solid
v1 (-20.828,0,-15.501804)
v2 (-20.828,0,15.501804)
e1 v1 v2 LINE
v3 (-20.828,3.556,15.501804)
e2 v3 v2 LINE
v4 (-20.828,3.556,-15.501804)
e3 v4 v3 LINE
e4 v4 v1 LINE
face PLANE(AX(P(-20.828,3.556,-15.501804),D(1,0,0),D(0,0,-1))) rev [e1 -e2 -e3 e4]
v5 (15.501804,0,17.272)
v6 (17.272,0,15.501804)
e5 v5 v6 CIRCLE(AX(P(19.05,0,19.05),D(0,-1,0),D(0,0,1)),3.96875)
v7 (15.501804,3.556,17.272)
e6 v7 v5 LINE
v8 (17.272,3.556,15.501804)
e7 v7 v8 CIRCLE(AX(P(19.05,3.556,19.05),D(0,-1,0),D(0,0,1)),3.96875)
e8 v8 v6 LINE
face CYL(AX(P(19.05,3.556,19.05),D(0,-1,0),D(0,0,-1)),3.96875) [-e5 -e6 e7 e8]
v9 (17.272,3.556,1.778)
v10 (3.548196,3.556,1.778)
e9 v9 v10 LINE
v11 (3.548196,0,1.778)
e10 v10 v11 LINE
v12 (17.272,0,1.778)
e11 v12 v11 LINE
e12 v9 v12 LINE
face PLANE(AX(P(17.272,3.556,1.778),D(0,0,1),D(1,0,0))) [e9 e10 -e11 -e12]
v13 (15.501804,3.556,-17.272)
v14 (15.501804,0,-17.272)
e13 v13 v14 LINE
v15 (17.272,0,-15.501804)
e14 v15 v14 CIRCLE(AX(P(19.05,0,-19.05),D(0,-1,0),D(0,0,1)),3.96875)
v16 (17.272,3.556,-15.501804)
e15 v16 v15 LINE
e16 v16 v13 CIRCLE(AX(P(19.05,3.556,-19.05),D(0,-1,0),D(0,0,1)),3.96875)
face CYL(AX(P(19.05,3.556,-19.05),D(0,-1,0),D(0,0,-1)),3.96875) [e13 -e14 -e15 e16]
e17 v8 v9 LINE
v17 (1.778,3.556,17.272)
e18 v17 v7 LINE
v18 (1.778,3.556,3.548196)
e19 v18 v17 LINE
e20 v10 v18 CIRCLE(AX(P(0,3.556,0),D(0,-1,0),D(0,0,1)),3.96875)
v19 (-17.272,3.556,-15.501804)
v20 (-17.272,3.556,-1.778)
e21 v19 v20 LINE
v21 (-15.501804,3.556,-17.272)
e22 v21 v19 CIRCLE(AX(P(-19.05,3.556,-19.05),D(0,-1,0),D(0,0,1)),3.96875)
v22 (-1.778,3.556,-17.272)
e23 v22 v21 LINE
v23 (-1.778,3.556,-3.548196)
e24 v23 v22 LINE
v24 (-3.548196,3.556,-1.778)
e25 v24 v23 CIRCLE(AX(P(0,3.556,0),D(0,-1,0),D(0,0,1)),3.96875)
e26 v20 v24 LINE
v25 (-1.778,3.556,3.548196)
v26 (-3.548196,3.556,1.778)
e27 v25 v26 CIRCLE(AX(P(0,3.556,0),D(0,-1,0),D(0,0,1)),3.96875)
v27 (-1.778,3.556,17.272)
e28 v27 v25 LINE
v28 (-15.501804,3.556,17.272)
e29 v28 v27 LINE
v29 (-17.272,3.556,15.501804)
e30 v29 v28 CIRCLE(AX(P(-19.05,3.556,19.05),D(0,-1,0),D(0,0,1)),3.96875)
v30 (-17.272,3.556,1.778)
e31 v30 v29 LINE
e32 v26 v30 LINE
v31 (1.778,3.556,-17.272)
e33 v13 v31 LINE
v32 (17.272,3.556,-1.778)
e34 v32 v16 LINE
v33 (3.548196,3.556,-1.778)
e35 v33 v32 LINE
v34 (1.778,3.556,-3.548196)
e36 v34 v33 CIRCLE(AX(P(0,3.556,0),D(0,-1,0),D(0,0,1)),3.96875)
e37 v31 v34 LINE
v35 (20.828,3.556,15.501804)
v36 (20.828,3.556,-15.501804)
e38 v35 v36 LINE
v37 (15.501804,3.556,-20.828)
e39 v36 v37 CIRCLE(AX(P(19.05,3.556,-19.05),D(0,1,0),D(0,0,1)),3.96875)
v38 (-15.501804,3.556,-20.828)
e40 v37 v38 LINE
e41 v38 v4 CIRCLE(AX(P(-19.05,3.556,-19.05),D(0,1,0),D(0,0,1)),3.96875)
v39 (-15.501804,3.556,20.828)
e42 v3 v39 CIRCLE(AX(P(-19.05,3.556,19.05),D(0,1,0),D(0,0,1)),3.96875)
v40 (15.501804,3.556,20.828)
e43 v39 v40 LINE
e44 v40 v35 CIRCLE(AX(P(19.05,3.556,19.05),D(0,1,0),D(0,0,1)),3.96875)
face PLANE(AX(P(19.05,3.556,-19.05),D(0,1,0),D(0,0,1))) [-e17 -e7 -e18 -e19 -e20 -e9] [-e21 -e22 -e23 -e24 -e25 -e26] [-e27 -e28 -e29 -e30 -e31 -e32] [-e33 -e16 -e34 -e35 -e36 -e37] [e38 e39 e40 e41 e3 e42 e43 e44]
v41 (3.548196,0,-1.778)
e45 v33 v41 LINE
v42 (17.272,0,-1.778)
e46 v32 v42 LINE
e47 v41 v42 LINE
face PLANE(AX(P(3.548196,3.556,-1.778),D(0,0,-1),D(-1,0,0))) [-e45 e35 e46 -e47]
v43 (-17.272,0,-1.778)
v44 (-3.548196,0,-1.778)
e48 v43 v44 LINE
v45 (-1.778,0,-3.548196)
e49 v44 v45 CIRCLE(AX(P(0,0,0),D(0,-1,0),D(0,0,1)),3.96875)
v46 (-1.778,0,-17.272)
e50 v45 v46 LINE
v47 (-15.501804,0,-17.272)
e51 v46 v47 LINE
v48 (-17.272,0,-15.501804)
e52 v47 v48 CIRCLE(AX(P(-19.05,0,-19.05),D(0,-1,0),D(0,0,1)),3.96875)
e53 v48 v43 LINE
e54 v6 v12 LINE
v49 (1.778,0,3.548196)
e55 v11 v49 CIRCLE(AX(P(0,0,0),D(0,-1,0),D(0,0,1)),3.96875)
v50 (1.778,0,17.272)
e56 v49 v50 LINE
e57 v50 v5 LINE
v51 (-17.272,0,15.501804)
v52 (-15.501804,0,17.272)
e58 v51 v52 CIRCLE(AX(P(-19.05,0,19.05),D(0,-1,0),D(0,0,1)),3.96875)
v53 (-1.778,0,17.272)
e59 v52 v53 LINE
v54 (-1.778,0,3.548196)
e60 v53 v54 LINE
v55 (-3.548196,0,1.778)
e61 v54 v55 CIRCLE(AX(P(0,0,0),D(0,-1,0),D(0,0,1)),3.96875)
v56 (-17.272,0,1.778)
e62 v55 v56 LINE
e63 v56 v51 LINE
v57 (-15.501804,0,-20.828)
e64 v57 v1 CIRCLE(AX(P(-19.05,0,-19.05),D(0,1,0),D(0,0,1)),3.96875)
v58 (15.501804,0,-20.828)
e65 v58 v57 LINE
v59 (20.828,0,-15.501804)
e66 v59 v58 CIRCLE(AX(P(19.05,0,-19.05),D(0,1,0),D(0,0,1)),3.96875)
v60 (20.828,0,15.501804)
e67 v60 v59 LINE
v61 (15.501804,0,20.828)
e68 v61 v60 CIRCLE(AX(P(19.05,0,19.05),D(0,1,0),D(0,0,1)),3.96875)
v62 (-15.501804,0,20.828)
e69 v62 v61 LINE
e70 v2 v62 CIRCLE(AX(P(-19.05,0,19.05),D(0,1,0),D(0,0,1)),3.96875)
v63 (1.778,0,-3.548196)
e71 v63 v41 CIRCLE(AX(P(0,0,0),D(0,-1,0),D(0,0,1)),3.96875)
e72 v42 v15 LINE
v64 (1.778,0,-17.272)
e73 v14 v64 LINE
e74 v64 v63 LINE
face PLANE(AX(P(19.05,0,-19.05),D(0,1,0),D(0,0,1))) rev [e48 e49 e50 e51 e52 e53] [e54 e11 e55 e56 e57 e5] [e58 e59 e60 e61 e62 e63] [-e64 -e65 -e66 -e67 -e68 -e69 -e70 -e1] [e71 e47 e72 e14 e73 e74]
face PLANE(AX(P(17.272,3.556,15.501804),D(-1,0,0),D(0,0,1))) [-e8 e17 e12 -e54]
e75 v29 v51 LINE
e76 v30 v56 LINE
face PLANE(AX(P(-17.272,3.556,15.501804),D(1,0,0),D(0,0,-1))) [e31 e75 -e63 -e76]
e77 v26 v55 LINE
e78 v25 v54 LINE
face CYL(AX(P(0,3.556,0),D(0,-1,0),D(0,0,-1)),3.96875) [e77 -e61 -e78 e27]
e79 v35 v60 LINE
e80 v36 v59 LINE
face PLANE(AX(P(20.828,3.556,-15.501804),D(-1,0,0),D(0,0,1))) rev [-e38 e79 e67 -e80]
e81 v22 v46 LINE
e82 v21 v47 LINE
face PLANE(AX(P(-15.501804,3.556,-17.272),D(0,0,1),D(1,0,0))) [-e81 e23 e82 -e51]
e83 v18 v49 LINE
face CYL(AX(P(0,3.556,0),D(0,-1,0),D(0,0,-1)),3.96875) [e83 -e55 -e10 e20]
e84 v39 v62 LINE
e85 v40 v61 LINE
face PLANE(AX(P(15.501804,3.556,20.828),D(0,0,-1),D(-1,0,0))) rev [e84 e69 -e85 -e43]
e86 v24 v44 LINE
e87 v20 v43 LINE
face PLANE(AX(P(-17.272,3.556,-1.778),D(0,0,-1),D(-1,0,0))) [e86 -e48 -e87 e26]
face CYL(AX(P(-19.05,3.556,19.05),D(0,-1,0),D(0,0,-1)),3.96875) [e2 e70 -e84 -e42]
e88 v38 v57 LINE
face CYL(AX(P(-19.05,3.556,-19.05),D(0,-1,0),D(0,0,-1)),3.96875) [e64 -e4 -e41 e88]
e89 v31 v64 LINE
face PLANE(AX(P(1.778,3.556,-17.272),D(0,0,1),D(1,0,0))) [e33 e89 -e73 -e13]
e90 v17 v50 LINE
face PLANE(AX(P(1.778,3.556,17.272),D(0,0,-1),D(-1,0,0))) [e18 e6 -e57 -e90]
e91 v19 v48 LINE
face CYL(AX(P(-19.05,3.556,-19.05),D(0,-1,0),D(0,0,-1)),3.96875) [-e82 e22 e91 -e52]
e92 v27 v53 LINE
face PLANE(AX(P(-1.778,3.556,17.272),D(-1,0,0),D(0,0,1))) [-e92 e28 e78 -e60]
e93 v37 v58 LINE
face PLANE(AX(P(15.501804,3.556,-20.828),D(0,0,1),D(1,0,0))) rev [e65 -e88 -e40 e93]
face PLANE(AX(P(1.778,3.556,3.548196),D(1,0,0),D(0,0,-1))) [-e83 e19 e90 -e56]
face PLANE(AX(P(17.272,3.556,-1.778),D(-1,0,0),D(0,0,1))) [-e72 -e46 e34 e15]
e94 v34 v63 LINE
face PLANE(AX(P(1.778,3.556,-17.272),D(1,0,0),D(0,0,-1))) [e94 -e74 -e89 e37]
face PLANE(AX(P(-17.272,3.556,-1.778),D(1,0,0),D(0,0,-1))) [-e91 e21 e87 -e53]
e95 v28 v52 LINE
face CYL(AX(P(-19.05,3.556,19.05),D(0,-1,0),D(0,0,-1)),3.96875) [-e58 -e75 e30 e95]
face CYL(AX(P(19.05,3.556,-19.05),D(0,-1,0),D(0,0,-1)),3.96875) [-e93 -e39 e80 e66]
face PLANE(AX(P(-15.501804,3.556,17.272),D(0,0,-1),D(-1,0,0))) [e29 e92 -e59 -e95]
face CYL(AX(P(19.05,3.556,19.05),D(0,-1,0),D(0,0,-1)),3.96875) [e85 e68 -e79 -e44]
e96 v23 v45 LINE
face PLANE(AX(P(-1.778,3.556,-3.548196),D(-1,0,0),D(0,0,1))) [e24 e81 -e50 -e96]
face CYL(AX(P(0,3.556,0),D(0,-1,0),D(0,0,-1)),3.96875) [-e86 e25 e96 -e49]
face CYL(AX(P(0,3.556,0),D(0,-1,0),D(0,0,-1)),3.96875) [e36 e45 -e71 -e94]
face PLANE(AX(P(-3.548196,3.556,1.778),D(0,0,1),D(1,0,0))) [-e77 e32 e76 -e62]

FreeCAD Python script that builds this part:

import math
import FreeCAD as App
import Part
import Sketcher

V = App.Vector
Q = App.Units.Quantity

doc = App.newDocument("Part")
params = doc.addObject("Spreadsheet::Sheet", "Params")
for row, (alias, value) in enumerate([
    ("sketch1_radius", "0.15625 in"),
    ("pad1_length", "0.14 in"),
], start=1):
    params.set(f"A{row}", alias)
    params.set(f"B{row}", "=" + value)
    params.setAlias(f"B{row}", alias)

body = doc.addObject("PartDesign::Body", "Body")

# Sketch on XZ plane
sketch1 = doc.addObject("Sketcher::SketchObject", "Sketch")
body.addObject(sketch1)
sketch1.AttachmentSupport = (doc.XZ_Plane, [""])
sketch1.MapMode = "FlatFace"
sketch1.addGeometry([
    Part.LineSegment(V(-15.5, 20.8, 0), V(15.5, 20.8, 0)),  # 0
    Part.ArcOfCircle(Part.Circle(V(19.1, 19.1, 0), V(0, 0, 1), 4), math.radians(-63), math.radians(153)),  # 1
    Part.LineSegment(V(20.8, 15.5, 0), V(20.8, -15.5, 0)),  # 2
    Part.ArcOfCircle(Part.Circle(V(19.1, -19.1, 0), V(0, 0, 1), 4), math.radians(-153), math.radians(63)),  # 3
    Part.LineSegment(V(15.5, -20.8, 0), V(-15.5, -20.8, 0)),  # 4
    Part.ArcOfCircle(Part.Circle(V(-19.1, -19.1, 0), V(0, 0, 1), 4), math.radians(117), math.radians(333)),  # 5
    Part.LineSegment(V(-20.8, -15.5, 0), V(-20.8, 15.5, 0)),  # 6
    Part.ArcOfCircle(Part.Circle(V(-19.1, 19.1, 0), V(0, 0, 1), 4), math.radians(27), math.radians(243)),  # 7
    Part.ArcOfCircle(Part.Circle(V(19, 19, 0), V(0, 0, 1), 4), math.radians(-153), math.radians(-117)),  # 8
    Part.LineSegment(V(15.5, 17.3, 0), V(1.8, 17.3, 0)),  # 9
    Part.LineSegment(V(1.8, 17.3, 0), V(1.8, 3.5, 0)),  # 10
    Part.ArcOfCircle(Part.Circle(V(0, 0, 0), V(0, 0, 1), 4), math.radians(27), math.radians(63)),  # 11
    Part.LineSegment(V(3.5, 1.8, 0), V(17.3, 1.8, 0)),  # 12
    Part.LineSegment(V(17.3, 1.8, 0), V(17.3, 15.5, 0)),  # 13
    Part.ArcOfCircle(Part.Circle(V(-19, 19, 0), V(0, 0, 1), 4), math.radians(-63), math.radians(-27)),  # 14
    Part.LineSegment(V(-17.3, 15.5, 0), V(-17.3, 1.8, 0)),  # 15
    Part.LineSegment(V(-17.3, 1.8, 0), V(-3.5, 1.8, 0)),  # 16
    Part.ArcOfCircle(Part.Circle(V(0, 0, 0), V(0, 0, 1), 4), math.radians(117), math.radians(153)),  # 17
    Part.LineSegment(V(-1.8, 3.5, 0), V(-1.8, 17.3, 0)),  # 18
    Part.LineSegment(V(-1.8, 17.3, 0), V(-15.5, 17.3, 0)),  # 19
    Part.LineSegment(V(1.8, -17.3, 0), V(15.5, -17.3, 0)),  # 20
    Part.ArcOfCircle(Part.Circle(V(19, -19, 0), V(0, 0, 1), 4), math.radians(117), math.radians(153)),  # 21
    Part.LineSegment(V(17.3, -15.5, 0), V(17.3, -1.8, 0)),  # 22
    Part.LineSegment(V(17.3, -1.8, 0), V(3.5, -1.8, 0)),  # 23
    Part.ArcOfCircle(Part.Circle(V(0, 0, 0), V(0, 0, 1), 4), math.radians(-63), math.radians(-27)),  # 24
    Part.LineSegment(V(1.8, -3.5, 0), V(1.8, -17.3, 0)),  # 25
    Part.LineSegment(V(-15.5, -17.3, 0), V(-1.8, -17.3, 0)),  # 26
    Part.LineSegment(V(-1.8, -17.3, 0), V(-1.8, -3.5, 0)),  # 27
    Part.ArcOfCircle(Part.Circle(V(0, 0, 0), V(0, 0, 1), 4), math.radians(-153), math.radians(-117)),  # 28
    Part.LineSegment(V(-3.5, -1.8, 0), V(-17.3, -1.8, 0)),  # 29
    Part.LineSegment(V(-17.3, -1.8, 0), V(-17.3, -15.5, 0)),  # 30
    Part.ArcOfCircle(Part.Circle(V(-19, -19, 0), V(0, 0, 1), 4), math.radians(27), math.radians(63)),  # 31
], False)
sketch1.addConstraint([
    Sketcher.Constraint("Coincident", 0, 2, 1, 2),
    Sketcher.Constraint("Coincident", 1, 1, 2, 1),
    Sketcher.Constraint("Coincident", 2, 2, 3, 2),
    Sketcher.Constraint("Coincident", 3, 1, 4, 1),
    Sketcher.Constraint("Coincident", 4, 2, 5, 2),
    Sketcher.Constraint("Coincident", 5, 1, 6, 1),
    Sketcher.Constraint("Coincident", 6, 2, 7, 2),
    Sketcher.Constraint("Coincident", 7, 1, 0, 1),
    Sketcher.Constraint("Coincident", 8, 1, 9, 1),
    Sketcher.Constraint("Coincident", 9, 2, 10, 1),
    Sketcher.Constraint("Coincident", 10, 2, 11, 2),
    Sketcher.Constraint("Coincident", 11, 1, 12, 1),
    Sketcher.Constraint("Coincident", 12, 2, 13, 1),
    Sketcher.Constraint("Coincident", 13, 2, 8, 2),
    Sketcher.Constraint("Coincident", 14, 1, 15, 1),
    Sketcher.Constraint("Coincident", 15, 2, 16, 1),
    Sketcher.Constraint("Coincident", 16, 2, 17, 2),
    Sketcher.Constraint("Coincident", 17, 1, 18, 1),
    Sketcher.Constraint("Coincident", 18, 2, 19, 1),
    Sketcher.Constraint("Coincident", 19, 2, 14, 2),
    Sketcher.Constraint("Coincident", 20, 2, 21, 2),
    Sketcher.Constraint("Coincident", 21, 1, 22, 1),
    Sketcher.Constraint("Coincident", 22, 2, 23, 1),
    Sketcher.Constraint("Coincident", 23, 2, 24, 2),
    Sketcher.Constraint("Coincident", 24, 1, 25, 1),
    Sketcher.Constraint("Coincident", 25, 2, 20, 1),
    Sketcher.Constraint("Coincident", 26, 2, 27, 1),
    Sketcher.Constraint("Coincident", 27, 2, 28, 2),
    Sketcher.Constraint("Coincident", 28, 1, 29, 1),
    Sketcher.Constraint("Coincident", 29, 2, 30, 1),
    Sketcher.Constraint("Coincident", 30, 2, 31, 2),
    Sketcher.Constraint("Coincident", 31, 1, 26, 1),
    Sketcher.Constraint("Horizontal", 0),
    Sketcher.Constraint("Vertical", 2),
    Sketcher.Constraint("Horizontal", 4),
    Sketcher.Constraint("Vertical", 6),
    Sketcher.Constraint("Horizontal", 9),
    Sketcher.Constraint("Vertical", 10),
    Sketcher.Constraint("Horizontal", 12),
    Sketcher.Constraint("Vertical", 13),
    Sketcher.Constraint("Vertical", 15),
    Sketcher.Constraint("Horizontal", 16),
    Sketcher.Constraint("Vertical", 18),
    Sketcher.Constraint("Horizontal", 19),
    Sketcher.Constraint("Horizontal", 20),
    Sketcher.Constraint("Vertical", 22),
    Sketcher.Constraint("Horizontal", 23),
    Sketcher.Constraint("Vertical", 25),
    Sketcher.Constraint("Horizontal", 26),
    Sketcher.Constraint("Vertical", 27),
    Sketcher.Constraint("Horizontal", 29),
    Sketcher.Constraint("Vertical", 30),
    Sketcher.Constraint("Coincident", 11, 3, -1, 1),
    Sketcher.Constraint("Coincident", 17, 3, -1, 1),
    Sketcher.Constraint("Coincident", 24, 3, -1, 1),
    Sketcher.Constraint("Coincident", 28, 3, -1, 1),
    Sketcher.Constraint("Coincident", 8, 3, 1, 3),
    Sketcher.Constraint("Coincident", 14, 3, 7, 3),
    Sketcher.Constraint("Coincident", 21, 3, 3, 3),
    Sketcher.Constraint("Coincident", 31, 3, 5, 3),
    Sketcher.Constraint("Equal", 1, 3),
    Sketcher.Constraint("Equal", 3, 5),
    Sketcher.Constraint("Equal", 5, 7),
    Sketcher.Constraint("Equal", 7, 8),
    Sketcher.Constraint("Equal", 8, 11),
    Sketcher.Constraint("Equal", 11, 14),
    Sketcher.Constraint("Equal", 14, 17),
    Sketcher.Constraint("Equal", 17, 21),
    Sketcher.Constraint("Equal", 21, 24),
    Sketcher.Constraint("Equal", 24, 28),
    Sketcher.Constraint("Equal", 28, 31),
    Sketcher.Constraint("Symmetric", 1, 3, 5, 3, -1, 1),
    Sketcher.Constraint("Symmetric", 3, 3, 7, 3, -1, 1),
    Sketcher.Constraint("Symmetric", 15, 2, 22, 2, -1, 1),
    Sketcher.Constraint("Symmetric", 18, 2, 25, 2, -1, 1),
    Sketcher.Constraint("Symmetric", 9, 2, 26, 2, -1, 1),
    Sketcher.Constraint("Symmetric", 12, 2, 29, 2, -1, 1),
    Sketcher.Constraint("Symmetric", 3, 3, 5, 3, -2),
    Sketcher.Constraint("Symmetric", 12, 2, 15, 2, -2),
    Sketcher.Constraint("Symmetric", 9, 2, 18, 2, -2),
    Sketcher.Constraint("Horizontal", 2, 2, 5, 1),
    Sketcher.Constraint("Horizontal", 6, 2, 13, 2),
    Sketcher.Constraint("Vertical", 0, 2, 3, 1),
    Sketcher.Constraint("Vertical", 3, 1, 8, 1),
    Sketcher.Constraint("Equal", 9, 12),
    Sketcher.Constraint("Equal", 4, 2),
    Sketcher.Constraint("Equal", 29, 10),
    Sketcher.Constraint("Equal", 10, 13),
    Sketcher.Constraint("Radius", 1, Q("0.15625 in")),
    Sketcher.Constraint("DistanceY", 3, 3, 1, 3, Q("1.5 in")),
    Sketcher.Constraint("DistanceY", -1, 1, 0, 2, Q("0.82 in")),
])
sketch1.setExpression("Constraints[88]", "Params.sketch1_radius")
pad1 = doc.addObject("PartDesign::Pad", "Pad")
body.addObject(pad1)
pad1.Profile = sketch1
pad1.setExpression("Length", "Params.pad1_length")
pad1.Reversed = True

doc.recompute()
